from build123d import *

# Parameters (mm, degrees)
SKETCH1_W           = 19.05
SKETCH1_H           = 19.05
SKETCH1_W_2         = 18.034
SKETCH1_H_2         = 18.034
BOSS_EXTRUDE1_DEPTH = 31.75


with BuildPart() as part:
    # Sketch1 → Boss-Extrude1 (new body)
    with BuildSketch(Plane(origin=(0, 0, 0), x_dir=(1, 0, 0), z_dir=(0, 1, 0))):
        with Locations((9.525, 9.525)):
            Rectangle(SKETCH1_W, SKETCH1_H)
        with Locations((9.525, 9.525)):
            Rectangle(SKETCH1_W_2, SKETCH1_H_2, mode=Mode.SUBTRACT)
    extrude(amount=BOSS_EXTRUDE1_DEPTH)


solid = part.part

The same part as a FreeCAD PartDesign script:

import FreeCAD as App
import Part
import Sketcher

V = App.Vector
Q = App.Units.Quantity


def add_polygon(sketch, points):
    """Adds a closed chain of lines whose ends are joined by coincident constraints."""
    first, n = sketch.GeometryCount, len(points)
    for a, b in zip(points, points[1:] + points[:1]):
        sketch.addGeometry(Part.LineSegment(App.Vector(*a, 0), App.Vector(*b, 0)), False)
    for i in range(n):
        sketch.addConstraint(Sketcher.Constraint("Coincident", first + i, 2, first + (i + 1) % n, 1))

doc = App.newDocument("Part")
body = doc.addObject("PartDesign::Body", "Body")

# Sketch on XZ plane
sketch1 = body.newObject("Sketcher::SketchObject", "Sketch")
sketch1.AttachmentSupport = (doc.getObject("XZ_Plane"), [""])
sketch1.MapMode = "FlatFace"
add_polygon(sketch1, [(0, -19), (0, 0), (19, 0), (19, -19)])  # lines 0-3
add_polygon(sketch1, [(19, -1), (1, -1), (1, -19), (19, -19)])  # lines 4-7
sketch1.addConstraint(Sketcher.Constraint("Vertical", 0))
sketch1.addConstraint(Sketcher.Constraint("Horizontal", 1))
sketch1.addConstraint(Sketcher.Constraint("Vertical", 2))
sketch1.addConstraint(Sketcher.Constraint("Horizontal", 3))
sketch1.addConstraint(Sketcher.Constraint("Horizontal", 4))
sketch1.addConstraint(Sketcher.Constraint("Vertical", 5))
sketch1.addConstraint(Sketcher.Constraint("Horizontal", 6))
sketch1.addConstraint(Sketcher.Constraint("Vertical", 7))
sketch1.addConstraint(Sketcher.Constraint("Coincident", 0, 2, -1, 1))
sketch1.addConstraint(Sketcher.Constraint("Equal", 3, 0))
sketch1.addConstraint(Sketcher.Constraint("Equal", 6, 5))
sketch1.addConstraint(Sketcher.Constraint("DistanceX", 1, 1, 1, 2, Q("0.75 in")))
sketch1.addConstraint(Sketcher.Constraint("DistanceX", 4, 2, 4, 1, Q("0.71 in")))
sketch1.addConstraint(Sketcher.Constraint("DistanceX", -1, 1, 4, 2, Q("0.02 in")))
sketch1.addConstraint(Sketcher.Constraint("DistanceY", 4, 2, -1, 1, Q("0.02 in")))
pad1 = body.newObject("PartDesign::Pad", "Pad")
pad1.Profile = sketch1
pad1.Length = Q("1.25 in")
pad1.Reversed = True

doc.recompute()
